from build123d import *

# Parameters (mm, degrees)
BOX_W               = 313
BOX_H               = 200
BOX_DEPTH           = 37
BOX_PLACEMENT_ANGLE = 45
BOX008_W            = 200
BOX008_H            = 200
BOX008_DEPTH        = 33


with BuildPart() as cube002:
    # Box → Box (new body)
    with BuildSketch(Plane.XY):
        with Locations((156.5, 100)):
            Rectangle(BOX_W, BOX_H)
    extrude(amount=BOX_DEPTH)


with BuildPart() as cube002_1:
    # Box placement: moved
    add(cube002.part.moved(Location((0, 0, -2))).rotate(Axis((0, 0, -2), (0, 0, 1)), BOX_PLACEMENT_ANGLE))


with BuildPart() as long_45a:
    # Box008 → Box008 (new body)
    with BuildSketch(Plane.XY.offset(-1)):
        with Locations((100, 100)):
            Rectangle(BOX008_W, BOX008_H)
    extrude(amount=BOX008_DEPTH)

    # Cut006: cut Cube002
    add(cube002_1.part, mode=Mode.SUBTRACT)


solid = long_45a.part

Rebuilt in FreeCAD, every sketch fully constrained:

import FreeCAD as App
import Part
import Sketcher

V = App.Vector
Q = App.Units.Quantity

doc = App.newDocument("Part")
body = doc.addObject("PartDesign::Body", "Body")

sketch1 = doc.addObject("Sketcher::SketchObject", "Sketch")
body.addObject(sketch1)
sketch1.AttachmentSupport = (doc.XY_Plane, [""])
sketch1.MapMode = "FlatFace"
sketch1.addGeometry(Part.LineSegment(V(0, 200, 0), V(0, 0, 0)), False)
sketch1.addGeometry(Part.LineSegment(V(0, 0, 0), V(313, 0, 0)), False)
sketch1.addGeometry(Part.LineSegment(V(313, 0, 0), V(313, 200, 0)), False)
sketch1.addGeometry(Part.LineSegment(V(313, 200, 0), V(0, 200, 0)), False)
sketch1.addConstraint(Sketcher.Constraint("Coincident", 0, 2, 1, 1))
sketch1.addConstraint(Sketcher.Constraint("Coincident", 1, 2, 2, 1))
sketch1.addConstraint(Sketcher.Constraint("Coincident", 2, 2, 3, 1))
sketch1.addConstraint(Sketcher.Constraint("Coincident", 3, 2, 0, 1))
sketch1.addConstraint(Sketcher.Constraint("Vertical", 0))
sketch1.addConstraint(Sketcher.Constraint("Horizontal", 1))
sketch1.addConstraint(Sketcher.Constraint("Vertical", 2))
sketch1.addConstraint(Sketcher.Constraint("Horizontal", 3))
sketch1.addConstraint(Sketcher.Constraint("Coincident", 0, 2, -1, 1))
sketch1.addConstraint(Sketcher.Constraint("DistanceX", 1, 1, 1, 2, Q("313 mm")))
sketch1.addConstraint(Sketcher.Constraint("DistanceY", 0, 2, 0, 1, Q("200 mm")))
pad1 = doc.addObject("PartDesign::Pad", "Pad")
body.addObject(pad1)
pad1.Profile = sketch1
pad1.Length = 37
body2 = doc.addObject("PartDesign::Body", "Body001")
doc.recompute()

body.Placement = App.Placement(V(0, 0, -2), App.Rotation(V(0, 0, 1), 45))
boolean = doc.addObject("PartDesign::Boolean", "Boolean")
body2.addObject(boolean)
boolean.Type = "Fuse"
boolean.addObjects([body])
body3 = doc.addObject("PartDesign::Body", "Body002")

sketch2 = doc.addObject("Sketcher::SketchObject", "Sketch001")
body3.addObject(sketch2)
sketch2.AttachmentSupport = (doc.getObject("XY_Plane002"), [""])
sketch2.MapMode = "FlatFace"
sketch2.AttachmentOffset = App.Placement(V(0, 0, -1), App.Rotation())
sketch2.addGeometry(Part.LineSegment(V(0, 200, 0), V(0, 0, 0)), False)
sketch2.addGeometry(Part.LineSegment(V(0, 0, 0), V(200, 0, 0)), False)
sketch2.addGeometry(Part.LineSegment(V(200, 0, 0), V(200, 200, 0)), False)
sketch2.addGeometry(Part.LineSegment(V(200, 200, 0), V(0, 200, 0)), False)
sketch2.addConstraint(Sketcher.Constraint("Coincident", 0, 2, 1, 1))
sketch2.addConstraint(Sketcher.Constraint("Coincident", 1, 2, 2, 1))
sketch2.addConstraint(Sketcher.Constraint("Coincident", 2, 2, 3, 1))
sketch2.addConstraint(Sketcher.Constraint("Coincident", 3, 2, 0, 1))
sketch2.addConstraint(Sketcher.Constraint("Vertical", 0))
sketch2.addConstraint(Sketcher.Constraint("Horizontal", 1))
sketch2.addConstraint(Sketcher.Constraint("Vertical", 2))
sketch2.addConstraint(Sketcher.Constraint("Horizontal", 3))
sketch2.addConstraint(Sketcher.Constraint("Coincident", 0, 2, -1, 1))
sketch2.addConstraint(Sketcher.Constraint("Equal", 3, 0))
sketch2.addConstraint(Sketcher.Constraint("DistanceX", 1, 1, 1, 2, Q("200 mm")))
pad2 = doc.addObject("PartDesign::Pad", "Pad001")
body3.addObject(pad2)
pad2.Profile = sketch2
pad2.Length = 33
doc.recompute()

boolean2 = doc.addObject("PartDesign::Boolean", "Boolean001")
body3.addObject(boolean2)
boolean2.Type = "Cut"
boolean2.addObjects([body2])

doc.recompute()
